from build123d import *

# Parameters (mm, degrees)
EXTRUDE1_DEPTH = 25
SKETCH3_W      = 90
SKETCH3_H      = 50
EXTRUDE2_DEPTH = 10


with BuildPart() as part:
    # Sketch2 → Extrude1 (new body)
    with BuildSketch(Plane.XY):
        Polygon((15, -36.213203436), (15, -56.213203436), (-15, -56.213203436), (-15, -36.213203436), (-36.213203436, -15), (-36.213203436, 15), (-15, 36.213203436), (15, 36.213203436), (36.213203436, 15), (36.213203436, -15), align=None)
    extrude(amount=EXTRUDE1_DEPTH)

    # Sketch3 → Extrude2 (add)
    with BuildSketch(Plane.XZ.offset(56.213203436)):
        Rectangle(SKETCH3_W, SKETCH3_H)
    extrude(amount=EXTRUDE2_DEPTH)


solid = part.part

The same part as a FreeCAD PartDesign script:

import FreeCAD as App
import Part
import Sketcher
from FreeCAD import Vector
Q = App.Units.Quantity

doc = App.newDocument("Part")
body = doc.addObject("PartDesign::Body", "Body")

sketch1 = doc.addObject("Sketcher::SketchObject", "Sketch")
body.addObject(sketch1)
sketch1.AttachmentSupport = (doc.XY_Plane, [""])
sketch1.MapMode = "FlatFace"
sketch1.addGeometry([
    Part.LineSegment(Vector(15, -56, 0), Vector(15, -36, 0)),
    Part.LineSegment(Vector(15, -36, 0), Vector(36, -15, 0)),
    Part.LineSegment(Vector(36, -15, 0), Vector(36, 15, 0)),
    Part.LineSegment(Vector(36, 15, 0), Vector(15, 36, 0)),
    Part.LineSegment(Vector(15, 36, 0), Vector(-15, 36, 0)),
    Part.LineSegment(Vector(-15, 36, 0), Vector(-36, 15, 0)),
    Part.LineSegment(Vector(-36, 15, 0), Vector(-36, -15, 0)),
    Part.LineSegment(Vector(-36, -15, 0), Vector(-15, -36, 0)),
    Part.LineSegment(Vector(-15, -36, 0), Vector(-15, -56, 0)),
    Part.LineSegment(Vector(-15, -56, 0), Vector(15, -56, 0)),
], False)
sketch1.addConstraint([
    Sketcher.Constraint("Coincident", 0, 2, 1, 1),
    Sketcher.Constraint("Coincident", 1, 2, 2, 1),
    Sketcher.Constraint("Coincident", 2, 2, 3, 1),
    Sketcher.Constraint("Coincident", 3, 2, 4, 1),
    Sketcher.Constraint("Coincident", 4, 2, 5, 1),
    Sketcher.Constraint("Coincident", 5, 2, 6, 1),
    Sketcher.Constraint("Coincident", 6, 2, 7, 1),
    Sketcher.Constraint("Coincident", 7, 2, 8, 1),
    Sketcher.Constraint("Coincident", 8, 2, 9, 1),
    Sketcher.Constraint("Coincident", 9, 2, 0, 1),
    Sketcher.Constraint("Vertical", 0),
    Sketcher.Constraint("Vertical", 2),
    Sketcher.Constraint("Horizontal", 4),
    Sketcher.Constraint("Vertical", 6),
    Sketcher.Constraint("Vertical", 8),
    Sketcher.Constraint("Horizontal", 9),
    Sketcher.Constraint("Symmetric", 0, 2, 4, 2, -1, 1),
    Sketcher.Constraint("Symmetric", 1, 2, 5, 2, -1, 1),
    Sketcher.Constraint("Symmetric", 3, 2, 7, 2, -1, 1),
    Sketcher.Constraint("Perpendicular", 1, 3),
    Sketcher.Constraint("Perpendicular", 5, 7),
    Sketcher.Constraint("Horizontal", 2, 2, 5, 2),
    Sketcher.Constraint("Vertical", 0, 2, 3, 2),
    Sketcher.Constraint("Equal", 9, 2),
    Sketcher.Constraint("DistanceX", 4, 2, 4, 1, Q("30 mm")),
    Sketcher.Constraint("DistanceY", 0, 1, 0, 2, Q("20 mm")),
    Sketcher.Constraint("Distance", 1, Q("30 mm")),
])
pad1 = doc.addObject("PartDesign::Pad", "Pad")
body.addObject(pad1)
pad1.Profile = sketch1
pad1.Length = 25

sketch2 = doc.addObject("Sketcher::SketchObject", "Sketch001")
body.addObject(sketch2)
sketch2.AttachmentSupport = (doc.XZ_Plane, [""])
sketch2.MapMode = "FlatFace"
sketch2.AttachmentOffset = App.Placement(Vector(0, 0, 56.213203), App.Rotation())
sketch2.addGeometry([
    Part.LineSegment(Vector(-45, 25, 0), Vector(-45, -25, 0)),
    Part.LineSegment(Vector(-45, -25, 0), Vector(45, -25, 0)),
    Part.LineSegment(Vector(45, -25, 0), Vector(45, 25, 0)),
    Part.LineSegment(Vector(45, 25, 0), Vector(-45, 25, 0)),
], False)
sketch2.addConstraint([
    Sketcher.Constraint("Coincident", 0, 2, 1, 1),
    Sketcher.Constraint("Coincident", 1, 2, 2, 1),
    Sketcher.Constraint("Coincident", 2, 2, 3, 1),
    Sketcher.Constraint("Coincident", 3, 2, 0, 1),
    Sketcher.Constraint("Vertical", 0),
    Sketcher.Constraint("Horizontal", 1),
    Sketcher.Constraint("Vertical", 2),
    Sketcher.Constraint("Horizontal", 3),
    Sketcher.Constraint("Symmetric", 0, 2, 2, 2, -1, 1),
    Sketcher.Constraint("DistanceX", 1, 1, 1, 2, Q("90 mm")),
    Sketcher.Constraint("DistanceY", 0, 2, 0, 1, Q("50 mm")),
])
pad2 = doc.addObject("PartDesign::Pad", "Pad001")
body.addObject(pad2)
pad2.Profile = sketch2
pad2.Length = 10

doc.recompute()
